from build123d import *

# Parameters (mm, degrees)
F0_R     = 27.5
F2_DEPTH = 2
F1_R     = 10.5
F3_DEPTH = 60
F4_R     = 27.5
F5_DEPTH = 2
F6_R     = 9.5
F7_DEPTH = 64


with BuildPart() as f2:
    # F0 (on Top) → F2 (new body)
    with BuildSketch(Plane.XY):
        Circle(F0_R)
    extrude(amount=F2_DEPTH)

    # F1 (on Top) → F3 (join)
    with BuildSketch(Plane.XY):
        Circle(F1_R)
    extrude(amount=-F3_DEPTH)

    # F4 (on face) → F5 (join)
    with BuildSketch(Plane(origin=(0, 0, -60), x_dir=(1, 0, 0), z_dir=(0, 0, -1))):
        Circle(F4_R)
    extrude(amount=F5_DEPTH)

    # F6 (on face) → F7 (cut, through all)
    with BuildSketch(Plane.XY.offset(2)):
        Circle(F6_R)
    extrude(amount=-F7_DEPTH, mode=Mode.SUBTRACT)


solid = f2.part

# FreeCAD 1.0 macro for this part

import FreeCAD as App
import Part
import Sketcher
Q = App.Units.Quantity

doc = App.newDocument("Part")
params = doc.addObject("Spreadsheet::Sheet", "Params")
for row, (alias, value) in enumerate([
    ("sketch1_diameter", "55 mm"),
    ("pad1_length", "2 mm"),
    ("sketch2_diameter", "21 mm"),
    ("pad2_length", "60 mm"),
    ("sketch3_diameter", "55 mm"),
    ("pad3_length", "2 mm"),
    ("sketch4_diameter", "19 mm"),
], start=1):
    params.set(f"A{row}", alias)
    params.set(f"B{row}", "=" + value)
    params.setAlias(f"B{row}", alias)

body = doc.addObject("PartDesign::Body", "Body")

# Sketch on XY plane
sketch1 = body.newObject("Sketcher::SketchObject", "Sketch")
sketch1.AttachmentSupport = (doc.getObject("XY_Plane"), [""])
sketch1.MapMode = "FlatFace"
sketch1.addGeometry(Part.Circle(App.Vector(0, 0, 0), App.Vector(0, 0, 1), 28), False)
sketch1.addConstraint(Sketcher.Constraint("Coincident", 0, 3, -1, 1))
sketch1.addConstraint(Sketcher.Constraint("Diameter", 0, Q("55 mm")))
sketch1.setExpression("Constraints[1]", "Params.sketch1_diameter")
pad1 = body.newObject("PartDesign::Pad", "Pad")
pad1.Profile = sketch1
pad1.setExpression("Length", "Params.pad1_length")

# Sketch on XY plane
sketch2 = body.newObject("Sketcher::SketchObject", "Sketch001")
sketch2.AttachmentSupport = (doc.getObject("XY_Plane"), [""])
sketch2.MapMode = "FlatFace"
sketch2.addGeometry(Part.Circle(App.Vector(0, 0, 0), App.Vector(0, 0, 1), 10), False)
sketch2.addConstraint(Sketcher.Constraint("Coincident", 0, 3, -1, 1))
sketch2.addConstraint(Sketcher.Constraint("Diameter", 0, Q("21 mm")))
sketch2.setExpression("Constraints[1]", "Params.sketch2_diameter")
pad2 = body.newObject("PartDesign::Pad", "Pad001")
pad2.Profile = sketch2
pad2.setExpression("Length", "Params.pad2_length")
pad2.Reversed = True

# Sketch on XY plane
sketch3 = body.newObject("Sketcher::SketchObject", "Sketch002")
sketch3.AttachmentSupport = (doc.getObject("XY_Plane"), [""])
sketch3.MapMode = "FlatFace"
sketch3.AttachmentOffset = App.Placement(App.Vector(0, 0, -60), App.Rotation())
sketch3.addGeometry(Part.Circle(App.Vector(0, 0, 0), App.Vector(0, 0, 1), 28), False)
sketch3.addConstraint(Sketcher.Constraint("Coincident", 0, 3, -1, 1))
sketch3.addConstraint(Sketcher.Constraint("Diameter", 0, Q("55 mm")))
sketch3.setExpression("Constraints[1]", "Params.sketch3_diameter")
pad3 = body.newObject("PartDesign::Pad", "Pad002")
pad3.Profile = sketch3
pad3.setExpression("Length", "Params.pad3_length")
pad3.Reversed = True

# Sketch on XY plane
sketch4 = body.newObject("Sketcher::SketchObject", "Sketch003")
sketch4.AttachmentSupport = (doc.getObject("XY_Plane"), [""])
sketch4.MapMode = "FlatFace"
sketch4.AttachmentOffset = App.Placement(App.Vector(0, 0, 2), App.Rotation())
sketch4.addGeometry(Part.Circle(App.Vector(0, 0, 0), App.Vector(0, 0, 1), 10), False)
sketch4.addConstraint(Sketcher.Constraint("Coincident", 0, 3, -1, 1))
sketch4.addConstraint(Sketcher.Constraint("Diameter", 0, Q("19 mm")))
sketch4.setExpression("Constraints[1]", "Params.sketch4_diameter")
pocket1 = body.newObject("PartDesign::Pocket", "Pocket")
pocket1.Profile = sketch4
pocket1.Type = "ThroughAll"

doc.recompute()
